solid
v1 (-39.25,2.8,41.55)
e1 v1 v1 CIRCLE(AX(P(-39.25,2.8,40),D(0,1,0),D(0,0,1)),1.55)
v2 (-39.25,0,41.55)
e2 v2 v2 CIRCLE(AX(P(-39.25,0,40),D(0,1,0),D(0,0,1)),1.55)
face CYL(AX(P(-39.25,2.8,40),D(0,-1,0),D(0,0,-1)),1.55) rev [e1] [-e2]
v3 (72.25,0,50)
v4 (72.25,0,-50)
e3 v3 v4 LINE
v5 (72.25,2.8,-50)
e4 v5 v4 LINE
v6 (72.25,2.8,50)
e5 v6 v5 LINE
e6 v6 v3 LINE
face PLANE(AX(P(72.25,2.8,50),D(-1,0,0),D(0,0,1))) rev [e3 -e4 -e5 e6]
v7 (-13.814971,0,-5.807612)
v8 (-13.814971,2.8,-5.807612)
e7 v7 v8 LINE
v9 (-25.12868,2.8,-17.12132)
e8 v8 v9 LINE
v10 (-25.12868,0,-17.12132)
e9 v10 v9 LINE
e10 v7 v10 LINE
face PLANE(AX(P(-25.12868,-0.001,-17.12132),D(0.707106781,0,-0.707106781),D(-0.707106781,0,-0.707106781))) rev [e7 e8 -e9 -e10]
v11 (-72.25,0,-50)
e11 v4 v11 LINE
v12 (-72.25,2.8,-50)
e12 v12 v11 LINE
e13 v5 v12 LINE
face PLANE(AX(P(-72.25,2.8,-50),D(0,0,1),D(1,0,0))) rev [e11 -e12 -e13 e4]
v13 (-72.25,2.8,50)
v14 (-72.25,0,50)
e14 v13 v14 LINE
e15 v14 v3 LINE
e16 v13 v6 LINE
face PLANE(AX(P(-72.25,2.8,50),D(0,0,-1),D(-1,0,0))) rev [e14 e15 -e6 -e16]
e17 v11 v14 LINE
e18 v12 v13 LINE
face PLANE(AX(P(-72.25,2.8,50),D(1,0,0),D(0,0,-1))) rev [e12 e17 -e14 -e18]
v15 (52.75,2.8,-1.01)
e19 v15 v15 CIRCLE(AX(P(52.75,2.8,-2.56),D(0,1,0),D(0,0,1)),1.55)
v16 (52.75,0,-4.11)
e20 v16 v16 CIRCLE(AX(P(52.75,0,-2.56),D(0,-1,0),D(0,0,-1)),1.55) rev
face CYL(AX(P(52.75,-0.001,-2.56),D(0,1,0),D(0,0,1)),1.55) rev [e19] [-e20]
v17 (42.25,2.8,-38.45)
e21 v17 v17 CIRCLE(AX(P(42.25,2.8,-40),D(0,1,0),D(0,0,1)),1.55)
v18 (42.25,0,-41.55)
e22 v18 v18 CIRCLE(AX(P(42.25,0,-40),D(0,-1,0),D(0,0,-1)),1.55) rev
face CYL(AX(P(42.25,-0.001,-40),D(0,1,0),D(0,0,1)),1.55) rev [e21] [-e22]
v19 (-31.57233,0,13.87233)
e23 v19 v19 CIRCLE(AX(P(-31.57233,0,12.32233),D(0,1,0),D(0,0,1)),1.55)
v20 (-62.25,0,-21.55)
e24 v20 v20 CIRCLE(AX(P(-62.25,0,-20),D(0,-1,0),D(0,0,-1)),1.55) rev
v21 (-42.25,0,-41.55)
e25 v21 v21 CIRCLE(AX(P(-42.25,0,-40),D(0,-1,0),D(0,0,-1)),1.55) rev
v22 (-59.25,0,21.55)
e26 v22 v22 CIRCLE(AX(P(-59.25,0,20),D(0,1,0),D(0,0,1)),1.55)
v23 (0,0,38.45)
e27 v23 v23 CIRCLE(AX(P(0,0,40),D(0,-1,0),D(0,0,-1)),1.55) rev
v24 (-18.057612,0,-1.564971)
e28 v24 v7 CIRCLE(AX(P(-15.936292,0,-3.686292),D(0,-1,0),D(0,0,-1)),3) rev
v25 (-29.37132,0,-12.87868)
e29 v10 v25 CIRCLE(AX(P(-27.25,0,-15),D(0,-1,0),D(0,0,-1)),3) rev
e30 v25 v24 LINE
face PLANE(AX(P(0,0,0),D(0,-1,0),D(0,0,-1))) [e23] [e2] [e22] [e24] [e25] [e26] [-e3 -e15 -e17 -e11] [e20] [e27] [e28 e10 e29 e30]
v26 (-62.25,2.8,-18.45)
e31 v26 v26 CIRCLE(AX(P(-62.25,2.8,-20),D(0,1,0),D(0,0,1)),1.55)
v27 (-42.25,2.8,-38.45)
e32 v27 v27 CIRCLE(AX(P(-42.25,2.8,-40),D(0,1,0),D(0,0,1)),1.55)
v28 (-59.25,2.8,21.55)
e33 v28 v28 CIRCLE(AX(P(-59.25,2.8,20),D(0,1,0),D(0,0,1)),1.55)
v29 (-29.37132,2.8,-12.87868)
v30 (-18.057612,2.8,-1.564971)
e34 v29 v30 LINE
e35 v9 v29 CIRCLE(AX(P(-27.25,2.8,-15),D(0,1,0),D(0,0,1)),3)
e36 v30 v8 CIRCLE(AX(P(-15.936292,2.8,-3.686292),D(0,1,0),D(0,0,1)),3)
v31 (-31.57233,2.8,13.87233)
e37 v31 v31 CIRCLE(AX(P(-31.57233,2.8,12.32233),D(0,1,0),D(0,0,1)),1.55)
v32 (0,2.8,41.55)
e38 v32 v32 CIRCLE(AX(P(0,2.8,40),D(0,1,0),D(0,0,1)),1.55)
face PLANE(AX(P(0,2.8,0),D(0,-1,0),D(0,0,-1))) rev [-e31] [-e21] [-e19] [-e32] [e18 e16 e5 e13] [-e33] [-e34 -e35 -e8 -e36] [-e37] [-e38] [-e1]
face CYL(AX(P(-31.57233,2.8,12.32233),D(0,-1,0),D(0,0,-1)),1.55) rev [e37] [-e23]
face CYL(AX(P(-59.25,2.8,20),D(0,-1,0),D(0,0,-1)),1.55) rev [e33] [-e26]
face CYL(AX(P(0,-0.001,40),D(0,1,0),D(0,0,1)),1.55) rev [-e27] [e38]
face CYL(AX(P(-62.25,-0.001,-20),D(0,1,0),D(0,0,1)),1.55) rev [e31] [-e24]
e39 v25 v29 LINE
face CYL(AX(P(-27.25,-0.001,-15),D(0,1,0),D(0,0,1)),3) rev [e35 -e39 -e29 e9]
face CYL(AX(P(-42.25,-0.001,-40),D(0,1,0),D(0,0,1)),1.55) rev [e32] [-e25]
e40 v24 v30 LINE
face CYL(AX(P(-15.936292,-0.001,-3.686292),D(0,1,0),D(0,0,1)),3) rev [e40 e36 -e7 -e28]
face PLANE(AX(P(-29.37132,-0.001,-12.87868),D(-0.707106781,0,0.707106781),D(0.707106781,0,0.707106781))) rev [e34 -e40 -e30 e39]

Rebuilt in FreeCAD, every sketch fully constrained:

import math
import FreeCAD as App
import Part
import Sketcher
Q = App.Units.Quantity


def add_polygon(sketch, points):
    """Adds a closed chain of lines whose ends are joined by coincident constraints."""
    first, n = sketch.GeometryCount, len(points)
    for a, b in zip(points, points[1:] + points[:1]):
        sketch.addGeometry(Part.LineSegment(App.Vector(*a, 0), App.Vector(*b, 0)), False)
    for i in range(n):
        sketch.addConstraint(Sketcher.Constraint("Coincident", first + i, 2, first + (i + 1) % n, 1))

doc = App.newDocument("Part")
params = doc.addObject("Spreadsheet::Sheet", "Params")
for row, (alias, value) in enumerate([
    ("sketch1_diameter", "3.1 mm"),
    ("sketch1_height", "100 mm"),
    ("sketch1_width", "144.5 mm"),
    ("pad1_length", "2.8 mm"),
    ("sketch2_radius", "3 mm"),
    ("sketch2_length", "16 mm"),
    ("sketch3_diameter", "3.1 mm"),
    ("sketch4_diameter", "3.1 mm"),
    ("sketch5_diameter", "3.1 mm"),
    ("sketch6_diameter", "3.1 mm"),
    ("sketch7_diameter", "3.1 mm"),
], start=1):
    params.set(f"A{row}", alias)
    params.set(f"B{row}", "=" + value)
    params.setAlias(f"B{row}", alias)

body = doc.addObject("PartDesign::Body", "Body")

# Sketch on XZ plane
sketch1 = body.newObject("Sketcher::SketchObject", "Sketch")
sketch1.AttachmentSupport = (doc.getObject("XZ_Plane"), [""])
sketch1.MapMode = "FlatFace"
add_polygon(sketch1, [(-72.2, -50), (-72.2, 50), (72.2, 50), (72.2, -50)])  # lines 0-3
sketch1.addGeometry(Part.Circle(App.Vector(-39.2, 40, 0), App.Vector(0, 0, 1), 1.6), False)  # 4
sketch1.addGeometry(Part.Circle(App.Vector(-59.2, 20, 0), App.Vector(0, 0, 1), 1.6), False)  # 5
sketch1.addGeometry(Part.Circle(App.Vector(-31.6, 12.3, 0), App.Vector(0, 0, 1), 1.6), False)  # 6
sketch1.addConstraint(Sketcher.Constraint("Vertical", 0))
sketch1.addConstraint(Sketcher.Constraint("Horizontal", 1))
sketch1.addConstraint(Sketcher.Constraint("Vertical", 2))
sketch1.addConstraint(Sketcher.Constraint("Horizontal", 3))
sketch1.addConstraint(Sketcher.Constraint("Equal", 4, 5))
sketch1.addConstraint(Sketcher.Constraint("Equal", 5, 6))
sketch1.addConstraint(Sketcher.Constraint("Symmetric", 0, 2, 2, 2, -1, 1))
sketch1.addConstraint(Sketcher.Constraint("Diameter", 4, Q("3.1 mm")))
sketch1.addConstraint(Sketcher.Constraint("DistanceY", 0, 1, 0, 2, Q("100 mm")))
sketch1.addConstraint(Sketcher.Constraint("DistanceX", 1, 1, 1, 2, Q("144.5 mm")))
sketch1.addConstraint(Sketcher.Constraint("DistanceY", -1, 1, 4, 3, Q("40 mm")))
sketch1.addConstraint(Sketcher.Constraint("DistanceY", -1, 1, 5, 3, Q("20 mm")))
sketch1.addConstraint(Sketcher.Constraint("DistanceX", 5, 3, 4, 3, Q("20 mm")))
sketch1.addConstraint(Sketcher.Constraint("DistanceX", 0, 2, 5, 3, Q("13 mm")))
sketch1.addConstraint(Sketcher.Constraint("DistanceX", 6, 3, -1, 1, Q("31.57233 mm")))
sketch1.addConstraint(Sketcher.Constraint("DistanceY", -1, 1, 6, 3, Q("12.32233 mm")))
sketch1.setExpression("Constraints[11]", "Params.sketch1_diameter")
sketch1.setExpression("Constraints[12]", "Params.sketch1_height")
sketch1.setExpression("Constraints[13]", "Params.sketch1_width")
pad1 = body.newObject("PartDesign::Pad", "Pad")
pad1.Profile = sketch1
pad1.setExpression("Length", "Params.pad1_length")
pad1.Reversed = True

# Sketch on XZ plane
sketch2 = body.newObject("Sketcher::SketchObject", "Sketch001")
sketch2.AttachmentSupport = (doc.getObject("XZ_Plane"), [""])
sketch2.MapMode = "FlatFace"
sketch2.AttachmentOffset = App.Placement(App.Vector(0, 0, -2.8), App.Rotation())
sketch2.addGeometry(Part.LineSegment(App.Vector(-13.8, -5.8, 0), App.Vector(-25.1, -17.1, 0)), False)
sketch2.addGeometry(Part.ArcOfCircle(Part.Circle(App.Vector(-27.2, -15, 0), App.Vector(0, 0, 1), 3), math.radians(135), math.radians(315)), False)
sketch2.addGeometry(Part.LineSegment(App.Vector(-29.4, -12.9, 0), App.Vector(-18.1, -1.6, 0)), False)
sketch2.addGeometry(Part.ArcOfCircle(Part.Circle(App.Vector(-15.9, -3.7, 0), App.Vector(0, 0, 1), 3), math.radians(-45), math.radians(135)), False)
sketch2.addConstraint(Sketcher.Constraint("Tangent", 0, 2, 1, 2))
sketch2.addConstraint(Sketcher.Constraint("Tangent", 1, 1, 2, 1))
sketch2.addConstraint(Sketcher.Constraint("Tangent", 2, 2, 3, 2))
sketch2.addConstraint(Sketcher.Constraint("Tangent", 3, 1, 0, 1))
sketch2.addConstraint(Sketcher.Constraint("Equal", 1, 3))
sketch2.addConstraint(Sketcher.Constraint("Radius", 1, Q("3 mm")))
sketch2.addConstraint(Sketcher.Constraint("Angle", 0, Q("-135 deg")))
sketch2.addConstraint(Sketcher.Constraint("Distance", 0, Q("16 mm")))
sketch2.addConstraint(Sketcher.Constraint("DistanceY", 1, 3, -1, 1, Q("15 mm")))
sketch2.addConstraint(Sketcher.Constraint("DistanceX", 1, 3, -1, 1, Q("27.25 mm")))
sketch2.setExpression("Constraints[5]", "Params.sketch2_radius")
sketch2.setExpression("Constraints[7]", "Params.sketch2_length")
pocket1 = body.newObject("PartDesign::Pocket", "Pocket")
pocket1.Profile = sketch2
pocket1.Type = "UpToFirst"
pocket1.Reversed = True

# Sketch on XZ plane
sketch3 = body.newObject("Sketcher::SketchObject", "Sketch002")
sketch3.AttachmentSupport = (doc.getObject("XZ_Plane"), [""])
sketch3.MapMode = "FlatFace"
sketch3.AttachmentOffset = App.Placement(App.Vector(0, 0, -2.8), App.Rotation())
sketch3.addGeometry(Part.Circle(App.Vector(-62.2, -20, 0), App.Vector(0, 0, 1), 1.6), False)
sketch3.addConstraint(Sketcher.Constraint("Diameter", 0, Q("3.1 mm")))
sketch3.addConstraint(Sketcher.Constraint("DistanceY", 0, 3, -1, 1, Q("20 mm")))
sketch3.addConstraint(Sketcher.Constraint("DistanceX", 0, 3, -1, 1, Q("62.25 mm")))
sketch3.setExpression("Constraints[0]", "Params.sketch3_diameter")
pocket2 = body.newObject("PartDesign::Pocket", "Pocket001")
pocket2.Profile = sketch3
pocket2.Type = "UpToFirst"
pocket2.Reversed = True

# Sketch on XZ plane
sketch4 = body.newObject("Sketcher::SketchObject", "Sketch003")
sketch4.AttachmentSupport = (doc.getObject("XZ_Plane"), [""])
sketch4.MapMode = "FlatFace"
sketch4.AttachmentOffset = App.Placement(App.Vector(0, 0, -2.8), App.Rotation())
sketch4.addGeometry(Part.Circle(App.Vector(-42.2, -40, 0), App.Vector(0, 0, 1), 1.6), False)
sketch4.addConstraint(Sketcher.Constraint("Diameter", 0, Q("3.1 mm")))
sketch4.addConstraint(Sketcher.Constraint("DistanceY", 0, 3, -1, 1, Q("40 mm")))
sketch4.addConstraint(Sketcher.Constraint("DistanceX", 0, 3, -1, 1, Q("42.25 mm")))
sketch4.setExpression("Constraints[0]", "Params.sketch4_diameter")
pocket3 = body.newObject("PartDesign::Pocket", "Pocket002")
pocket3.Profile = sketch4
pocket3.Type = "UpToFirst"
pocket3.Reversed = True

# Sketch on XZ plane
sketch5 = body.newObject("Sketcher::SketchObject", "Sketch004")
sketch5.AttachmentSupport = (doc.getObject("XZ_Plane"), [""])
sketch5.MapMode = "FlatFace"
sketch5.AttachmentOffset = App.Placement(App.Vector(0, 0, -2.8), App.Rotation())
sketch5.addGeometry(Part.Circle(App.Vector(42.2, -40, 0), App.Vector(0, 0, 1), 1.6), False)
sketch5.addConstraint(Sketcher.Constraint("Diameter", 0, Q("3.1 mm")))
sketch5.addConstraint(Sketcher.Constraint("DistanceY", 0, 3, -1, 1, Q("40 mm")))
sketch5.addConstraint(Sketcher.Constraint("DistanceX", -1, 1, 0, 3, Q("42.25 mm")))
sketch5.setExpression("Constraints[0]", "Params.sketch5_diameter")
pocket4 = body.newObject("PartDesign::Pocket", "Pocket003")
pocket4.Profile = sketch5
pocket4.Type = "UpToFirst"
pocket4.Reversed = True

# Sketch on XZ plane
sketch6 = body.newObject("Sketcher::SketchObject", "Sketch005")
sketch6.AttachmentSupport = (doc.getObject("XZ_Plane"), [""])
sketch6.MapMode = "FlatFace"
sketch6.AttachmentOffset = App.Placement(App.Vector(0, 0, -2.8), App.Rotation())
sketch6.addGeometry(Part.Circle(App.Vector(0, 40, 0), App.Vector(0, 0, 1), 1.6), False)
sketch6.addConstraint(Sketcher.Constraint("PointOnObject", 0, 3, -2))
sketch6.addConstraint(Sketcher.Constraint("Diameter", 0, Q("3.1 mm")))
sketch6.addConstraint(Sketcher.Constraint("DistanceY", -1, 1, 0, 3, Q("40 mm")))
sketch6.setExpression("Constraints[1]", "Params.sketch6_diameter")
pocket5 = body.newObject("PartDesign::Pocket", "Pocket004")
pocket5.Profile = sketch6
pocket5.Type = "UpToFirst"
pocket5.Reversed = True

# Sketch on XZ plane
sketch7 = body.newObject("Sketcher::SketchObject", "Sketch006")
sketch7.AttachmentSupport = (doc.getObject("XZ_Plane"), [""])
sketch7.MapMode = "FlatFace"
sketch7.AttachmentOffset = App.Placement(App.Vector(0, 0, -2.8), App.Rotation())
sketch7.addGeometry(Part.Circle(App.Vector(52.8, -2.6, 0), App.Vector(0, 0, 1), 1.6), False)
sketch7.addConstraint(Sketcher.Constraint("Diameter", 0, Q("3.1 mm")))
sketch7.addConstraint(Sketcher.Constraint("DistanceX", -1, 1, 0, 3, Q("52.75 mm")))
sketch7.addConstraint(Sketcher.Constraint("DistanceY", 0, 3, -1, 1, Q("2.56 mm")))
sketch7.setExpression("Constraints[0]", "Params.sketch7_diameter")
pocket6 = body.newObject("PartDesign::Pocket", "Pocket005")
pocket6.Profile = sketch7
pocket6.Type = "UpToFirst"
pocket6.Reversed = True

doc.recompute()
